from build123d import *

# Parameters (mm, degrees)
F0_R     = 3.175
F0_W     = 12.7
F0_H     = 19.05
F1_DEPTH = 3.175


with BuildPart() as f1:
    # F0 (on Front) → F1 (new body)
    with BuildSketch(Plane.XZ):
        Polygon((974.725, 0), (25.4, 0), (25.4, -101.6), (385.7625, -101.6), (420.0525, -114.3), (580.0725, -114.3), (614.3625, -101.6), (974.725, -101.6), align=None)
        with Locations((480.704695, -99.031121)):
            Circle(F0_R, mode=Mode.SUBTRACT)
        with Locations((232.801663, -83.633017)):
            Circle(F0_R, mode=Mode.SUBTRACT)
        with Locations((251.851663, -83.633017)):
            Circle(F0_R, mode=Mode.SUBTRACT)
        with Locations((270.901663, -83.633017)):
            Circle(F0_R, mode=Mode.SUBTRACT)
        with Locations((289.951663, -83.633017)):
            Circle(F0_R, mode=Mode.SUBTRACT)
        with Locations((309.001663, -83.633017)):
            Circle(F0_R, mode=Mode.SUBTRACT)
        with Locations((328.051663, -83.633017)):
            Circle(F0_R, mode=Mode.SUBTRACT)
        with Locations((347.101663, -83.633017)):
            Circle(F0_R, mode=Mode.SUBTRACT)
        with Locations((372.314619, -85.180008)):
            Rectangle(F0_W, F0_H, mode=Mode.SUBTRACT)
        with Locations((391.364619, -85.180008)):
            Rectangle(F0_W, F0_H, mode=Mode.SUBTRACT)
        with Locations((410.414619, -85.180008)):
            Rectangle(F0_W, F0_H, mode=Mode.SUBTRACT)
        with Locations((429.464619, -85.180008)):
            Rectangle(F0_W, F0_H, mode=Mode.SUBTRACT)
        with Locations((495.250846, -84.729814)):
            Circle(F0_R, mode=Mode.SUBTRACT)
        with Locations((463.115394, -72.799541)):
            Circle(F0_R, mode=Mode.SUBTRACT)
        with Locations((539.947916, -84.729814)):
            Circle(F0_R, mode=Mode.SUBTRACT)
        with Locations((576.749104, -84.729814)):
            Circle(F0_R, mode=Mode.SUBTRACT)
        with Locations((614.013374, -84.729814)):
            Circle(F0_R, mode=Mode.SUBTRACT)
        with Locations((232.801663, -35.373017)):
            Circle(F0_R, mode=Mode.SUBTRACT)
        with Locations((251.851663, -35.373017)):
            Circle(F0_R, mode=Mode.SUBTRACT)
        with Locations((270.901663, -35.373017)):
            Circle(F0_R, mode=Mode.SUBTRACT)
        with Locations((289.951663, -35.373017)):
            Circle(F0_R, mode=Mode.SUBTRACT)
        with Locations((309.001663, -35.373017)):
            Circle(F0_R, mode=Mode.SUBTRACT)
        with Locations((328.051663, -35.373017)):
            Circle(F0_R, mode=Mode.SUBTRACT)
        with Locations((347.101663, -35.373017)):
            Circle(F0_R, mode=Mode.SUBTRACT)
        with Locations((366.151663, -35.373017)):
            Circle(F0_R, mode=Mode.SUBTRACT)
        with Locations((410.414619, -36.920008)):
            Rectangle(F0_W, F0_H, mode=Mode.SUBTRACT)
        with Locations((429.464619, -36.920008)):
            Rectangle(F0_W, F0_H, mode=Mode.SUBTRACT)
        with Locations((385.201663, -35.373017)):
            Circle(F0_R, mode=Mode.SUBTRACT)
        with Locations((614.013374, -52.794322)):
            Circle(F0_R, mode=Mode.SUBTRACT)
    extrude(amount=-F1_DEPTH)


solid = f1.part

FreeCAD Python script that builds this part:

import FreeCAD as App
import Part
import Sketcher
Q = App.Units.Quantity

doc = App.newDocument("Part")
body = doc.addObject("PartDesign::Body", "Body")

# Sketch on XZ plane
sketch1 = doc.addObject("Sketcher::SketchObject", "Sketch")
body.addObject(sketch1)
sketch1.AttachmentSupport = (doc.XZ_Plane, [""])
sketch1.MapMode = "FlatFace"
sketch1.addGeometry([
    Part.LineSegment(App.Vector(974.7, 0, 0), App.Vector(25.4, 0, 0)),  # 0
    Part.LineSegment(App.Vector(25.4, 0, 0), App.Vector(25.4, -101.6, 0)),  # 1
    Part.LineSegment(App.Vector(25.4, -101.6, 0), App.Vector(385.8, -101.6, 0)),  # 2
    Part.LineSegment(App.Vector(385.8, -101.6, 0), App.Vector(420.1, -114.3, 0)),  # 3
    Part.LineSegment(App.Vector(420.1, -114.3, 0), App.Vector(580.1, -114.3, 0)),  # 4
    Part.LineSegment(App.Vector(580.1, -114.3, 0), App.Vector(614.4, -101.6, 0)),  # 5
    Part.LineSegment(App.Vector(614.4, -101.6, 0), App.Vector(974.7, -101.6, 0)),  # 6
    Part.LineSegment(App.Vector(974.7, -101.6, 0), App.Vector(974.7, 0, 0)),  # 7
    Part.Circle(App.Vector(232.8, -83.6, 0), App.Vector(0, 0, 1), 3.2),  # 8
    Part.Circle(App.Vector(251.9, -83.6, 0), App.Vector(0, 0, 1), 3.2),  # 9
    Part.Circle(App.Vector(270.9, -83.6, 0), App.Vector(0, 0, 1), 3.2),  # 10
    Part.Circle(App.Vector(290, -83.6, 0), App.Vector(0, 0, 1), 3.2),  # 11
    Part.Circle(App.Vector(309, -83.6, 0), App.Vector(0, 0, 1), 3.2),  # 12
    Part.Circle(App.Vector(328.1, -83.6, 0), App.Vector(0, 0, 1), 3.2),  # 13
    Part.Circle(App.Vector(347.1, -83.6, 0), App.Vector(0, 0, 1), 3.2),  # 14
    Part.LineSegment(App.Vector(378.7, -94.7, 0), App.Vector(366, -94.7, 0)),  # 15
    Part.LineSegment(App.Vector(366, -94.7, 0), App.Vector(366, -75.7, 0)),  # 16
    Part.LineSegment(App.Vector(366, -75.7, 0), App.Vector(378.7, -75.7, 0)),  # 17
    Part.LineSegment(App.Vector(378.7, -75.7, 0), App.Vector(378.7, -94.7, 0)),  # 18
    Part.LineSegment(App.Vector(397.7, -94.7, 0), App.Vector(385, -94.7, 0)),  # 19
    Part.LineSegment(App.Vector(385, -94.7, 0), App.Vector(385, -75.7, 0)),  # 20
    Part.LineSegment(App.Vector(385, -75.7, 0), App.Vector(397.7, -75.7, 0)),  # 21
    Part.LineSegment(App.Vector(397.7, -75.7, 0), App.Vector(397.7, -94.7, 0)),  # 22
    Part.LineSegment(App.Vector(416.8, -94.7, 0), App.Vector(404.1, -94.7, 0)),  # 23
    Part.LineSegment(App.Vector(404.1, -94.7, 0), App.Vector(404.1, -75.7, 0)),  # 24
    Part.LineSegment(App.Vector(404.1, -75.7, 0), App.Vector(416.8, -75.7, 0)),  # 25
    Part.LineSegment(App.Vector(416.8, -75.7, 0), App.Vector(416.8, -94.7, 0)),  # 26
    Part.Circle(App.Vector(480.7, -99, 0), App.Vector(0, 0, 1), 3.2),  # 27
    Part.LineSegment(App.Vector(435.8, -94.7, 0), App.Vector(423.1, -94.7, 0)),  # 28
    Part.LineSegment(App.Vector(423.1, -94.7, 0), App.Vector(423.1, -75.7, 0)),  # 29
    Part.LineSegment(App.Vector(423.1, -75.7, 0), App.Vector(435.8, -75.7, 0)),  # 30
    Part.LineSegment(App.Vector(435.8, -75.7, 0), App.Vector(435.8, -94.7, 0)),  # 31
    Part.Circle(App.Vector(495.3, -84.7, 0), App.Vector(0, 0, 1), 3.2),  # 32
    Part.Circle(App.Vector(539.9, -84.7, 0), App.Vector(0, 0, 1), 3.2),  # 33
    Part.Circle(App.Vector(576.7, -84.7, 0), App.Vector(0, 0, 1), 3.2),  # 34
    Part.Circle(App.Vector(614, -84.7, 0), App.Vector(0, 0, 1), 3.2),  # 35
    Part.Circle(App.Vector(463.1, -72.8, 0), App.Vector(0, 0, 1), 3.2),  # 36
    Part.Circle(App.Vector(232.8, -35.4, 0), App.Vector(0, 0, 1), 3.2),  # 37
    Part.Circle(App.Vector(251.9, -35.4, 0), App.Vector(0, 0, 1), 3.2),  # 38
    Part.Circle(App.Vector(270.9, -35.4, 0), App.Vector(0, 0, 1), 3.2),  # 39
    Part.Circle(App.Vector(290, -35.4, 0), App.Vector(0, 0, 1), 3.2),  # 40
    Part.Circle(App.Vector(309, -35.4, 0), App.Vector(0, 0, 1), 3.2),  # 41
    Part.LineSegment(App.Vector(416.8, -46.4, 0), App.Vector(404.1, -46.4, 0)),  # 42
    Part.LineSegment(App.Vector(404.1, -46.4, 0), App.Vector(404.1, -27.4, 0)),  # 43
    Part.LineSegment(App.Vector(404.1, -27.4, 0), App.Vector(416.8, -27.4, 0)),  # 44
    Part.LineSegment(App.Vector(416.8, -27.4, 0), App.Vector(416.8, -46.4, 0)),  # 45
    Part.Circle(App.Vector(328.1, -35.4, 0), App.Vector(0, 0, 1), 3.2),  # 46
    Part.Circle(App.Vector(347.1, -35.4, 0), App.Vector(0, 0, 1), 3.2),  # 47
    Part.Circle(App.Vector(366.2, -35.4, 0), App.Vector(0, 0, 1), 3.2),  # 48
    Part.Circle(App.Vector(385.2, -35.4, 0), App.Vector(0, 0, 1), 3.2),  # 49
    Part.Circle(App.Vector(614, -52.8, 0), App.Vector(0, 0, 1), 3.2),  # 50
    Part.LineSegment(App.Vector(435.8, -46.4, 0), App.Vector(423.1, -46.4, 0)),  # 51
    Part.LineSegment(App.Vector(423.1, -46.4, 0), App.Vector(423.1, -27.4, 0)),  # 52
    Part.LineSegment(App.Vector(423.1, -27.4, 0), App.Vector(435.8, -27.4, 0)),  # 53
    Part.LineSegment(App.Vector(435.8, -27.4, 0), App.Vector(435.8, -46.4, 0)),  # 54
], False)
sketch1.addConstraint([
    Sketcher.Constraint("Coincident", 0, 2, 1, 1),
    Sketcher.Constraint("Coincident", 1, 2, 2, 1),
    Sketcher.Constraint("Coincident", 2, 2, 3, 1),
    Sketcher.Constraint("Coincident", 3, 2, 4, 1),
    Sketcher.Constraint("Coincident", 4, 2, 5, 1),
    Sketcher.Constraint("Coincident", 5, 2, 6, 1),
    Sketcher.Constraint("Coincident", 6, 2, 7, 1),
    Sketcher.Constraint("Coincident", 7, 2, 0, 1),
    Sketcher.Constraint("Coincident", 15, 2, 16, 1),
    Sketcher.Constraint("Coincident", 16, 2, 17, 1),
    Sketcher.Constraint("Coincident", 17, 2, 18, 1),
    Sketcher.Constraint("Coincident", 18, 2, 15, 1),
    Sketcher.Constraint("Coincident", 19, 2, 20, 1),
    Sketcher.Constraint("Coincident", 20, 2, 21, 1),
    Sketcher.Constraint("Coincident", 21, 2, 22, 1),
    Sketcher.Constraint("Coincident", 22, 2, 19, 1),
    Sketcher.Constraint("Coincident", 23, 2, 24, 1),
    Sketcher.Constraint("Coincident", 24, 2, 25, 1),
    Sketcher.Constraint("Coincident", 25, 2, 26, 1),
    Sketcher.Constraint("Coincident", 26, 2, 23, 1),
    Sketcher.Constraint("Coincident", 28, 2, 29, 1),
    Sketcher.Constraint("Coincident", 29, 2, 30, 1),
    Sketcher.Constraint("Coincident", 30, 2, 31, 1),
    Sketcher.Constraint("Coincident", 31, 2, 28, 1),
    Sketcher.Constraint("Coincident", 42, 2, 43, 1),
    Sketcher.Constraint("Coincident", 43, 2, 44, 1),
    Sketcher.Constraint("Coincident", 44, 2, 45, 1),
    Sketcher.Constraint("Coincident", 45, 2, 42, 1),
    Sketcher.Constraint("Coincident", 51, 2, 52, 1),
    Sketcher.Constraint("Coincident", 52, 2, 53, 1),
    Sketcher.Constraint("Coincident", 53, 2, 54, 1),
    Sketcher.Constraint("Coincident", 54, 2, 51, 1),
    Sketcher.Constraint("Horizontal", 0),
    Sketcher.Constraint("Vertical", 1),
    Sketcher.Constraint("Horizontal", 2),
    Sketcher.Constraint("Horizontal", 4),
    Sketcher.Constraint("Horizontal", 6),
    Sketcher.Constraint("Vertical", 7),
    Sketcher.Constraint("Horizontal", 15),
    Sketcher.Constraint("Vertical", 16),
    Sketcher.Constraint("Horizontal", 17),
    Sketcher.Constraint("Vertical", 18),
    Sketcher.Constraint("Horizontal", 19),
    Sketcher.Constraint("Vertical", 20),
    Sketcher.Constraint("Horizontal", 21),
    Sketcher.Constraint("Vertical", 22),
    Sketcher.Constraint("Horizontal", 23),
    Sketcher.Constraint("Vertical", 24),
    Sketcher.Constraint("Horizontal", 25),
    Sketcher.Constraint("Vertical", 26),
    Sketcher.Constraint("Horizontal", 28),
    Sketcher.Constraint("Vertical", 29),
    Sketcher.Constraint("Horizontal", 30),
    Sketcher.Constraint("Vertical", 31),
    Sketcher.Constraint("Horizontal", 42),
    Sketcher.Constraint("Vertical", 43),
    Sketcher.Constraint("Horizontal", 44),
    Sketcher.Constraint("Vertical", 45),
    Sketcher.Constraint("Horizontal", 51),
    Sketcher.Constraint("Vertical", 52),
    Sketcher.Constraint("Horizontal", 53),
    Sketcher.Constraint("Vertical", 54),
    Sketcher.Constraint("Equal", 8, 9),
    Sketcher.Constraint("Equal", 9, 10),
    Sketcher.Constraint("Equal", 10, 11),
    Sketcher.Constraint("Equal", 11, 12),
    Sketcher.Constraint("Equal", 12, 13),
    Sketcher.Constraint("Equal", 13, 14),
    Sketcher.Constraint("Equal", 14, 27),
    Sketcher.Constraint("Equal", 27, 32),
    Sketcher.Constraint("Equal", 32, 33),
    Sketcher.Constraint("Equal", 33, 34),
    Sketcher.Constraint("Equal", 34, 35),
    Sketcher.Constraint("Equal", 35, 36),
    Sketcher.Constraint("Equal", 36, 37),
    Sketcher.Constraint("Equal", 37, 38),
    Sketcher.Constraint("Equal", 38, 39),
    Sketcher.Constraint("Equal", 39, 40),
    Sketcher.Constraint("Equal", 40, 41),
    Sketcher.Constraint("Equal", 41, 46),
    Sketcher.Constraint("Equal", 46, 47),
    Sketcher.Constraint("Equal", 47, 48),
    Sketcher.Constraint("Equal", 48, 49),
    Sketcher.Constraint("Equal", 49, 50),
    Sketcher.Constraint("PointOnObject", 0, 2, -1),
    Sketcher.Constraint("Horizontal", 8, 3, 9, 3),
    Sketcher.Constraint("Horizontal", 9, 3, 10, 3),
    Sketcher.Constraint("Horizontal", 10, 3, 11, 3),
    Sketcher.Constraint("Horizontal", 11, 3, 12, 3),
    Sketcher.Constraint("Horizontal", 12, 3, 13, 3),
    Sketcher.Constraint("Horizontal", 13, 3, 14, 3),
    Sketcher.Constraint("Horizontal", 32, 3, 33, 3),
    Sketcher.Constraint("Horizontal", 33, 3, 34, 3),
    Sketcher.Constraint("Horizontal", 34, 3, 35, 3),
    Sketcher.Constraint("Horizontal", 37, 3, 38, 3),
    Sketcher.Constraint("Horizontal", 38, 3, 39, 3),
    Sketcher.Constraint("Horizontal", 39, 3, 40, 3),
    Sketcher.Constraint("Horizontal", 40, 3, 41, 3),
    Sketcher.Constraint("Horizontal", 41, 3, 46, 3),
    Sketcher.Constraint("Horizontal", 46, 3, 47, 3),
    Sketcher.Constraint("Horizontal", 47, 3, 48, 3),
    Sketcher.Constraint("Horizontal", 48, 3, 49, 3),
    Sketcher.Constraint("Horizontal", 2, 2, 5, 2),
    Sketcher.Constraint("Horizontal", 18, 2, 19, 2),
    Sketcher.Constraint("Horizontal", 17, 2, 20, 2),
    Sketcher.Constraint("Horizontal", 22, 2, 23, 2),
    Sketcher.Constraint("Horizontal", 21, 2, 24, 2),
    Sketcher.Constraint("Horizontal", 26, 2, 28, 2),
    Sketcher.Constraint("Horizontal", 25, 2, 29, 2),
    Sketcher.Constraint("Horizontal", 45, 2, 51, 2),
    Sketcher.Constraint("Horizontal", 44, 2, 52, 2),
    Sketcher.Constraint("Vertical", 8, 3, 37, 3),
    Sketcher.Constraint("Vertical", 9, 3, 38, 3),
    Sketcher.Constraint("Vertical", 10, 3, 39, 3),
    Sketcher.Constraint("Vertical", 11, 3, 40, 3),
    Sketcher.Constraint("Vertical", 12, 3, 41, 3),
    Sketcher.Constraint("Vertical", 13, 3, 46, 3),
    Sketcher.Constraint("Vertical", 14, 3, 47, 3),
    Sketcher.Constraint("Vertical", 35, 3, 50, 3),
    Sketcher.Constraint("Vertical", 24, 2, 42, 2),
    Sketcher.Constraint("Vertical", 26, 2, 44, 2),
    Sketcher.Constraint("Vertical", 29, 2, 51, 2),
    Sketcher.Constraint("Vertical", 31, 2, 53, 2),
    Sketcher.Constraint("Equal", 2, 6),
    Sketcher.Constraint("Equal", 17, 19),
    Sketcher.Constraint("Equal", 21, 23),
    Sketcher.Constraint("Equal", 25, 28),
    Sketcher.Constraint("Equal", 31, 43),
    Sketcher.Constraint("Equal", 3, 5),
    Sketcher.Constraint("Diameter", 8, Q("0.25 in")),
    Sketcher.Constraint("DistanceY", 1, 2, 1, 1, Q("4 in")),
    Sketcher.Constraint("DistanceX", 4, 1, 4, 2, Q("6.3 in")),
    Sketcher.Constraint("DistanceX", 15, 2, 15, 1, Q("0.5 in")),
    Sketcher.Constraint("DistanceX", -1, 1, 0, 2, Q("1 in")),
    Sketcher.Constraint("DistanceX", 8, 3, 12, 3, Q("3 in")),
    Sketcher.Constraint("DistanceX", 9, 3, 13, 3, Q("3 in")),
    Sketcher.Constraint("DistanceX", 10, 3, 14, 3, Q("3 in")),
    Sketcher.Constraint("DistanceX", 17, 2, 24, 2, Q("1 in")),
    Sketcher.Constraint("DistanceX", 22, 2, 28, 2, Q("1 in")),
    Sketcher.Constraint("DistanceY", 16, 1, 16, 2, Q("0.75 in")),
    Sketcher.Constraint("DistanceY", 3, 2, -1, 1, Q("4.5 in")),
    Sketcher.Constraint("DistanceX", 8, 3, 10, 3, Q("1.5 in")),
    Sketcher.Constraint("DistanceX", 9, 3, 11, 3, Q("1.5 in")),
    Sketcher.Constraint("DistanceY", 8, 3, 37, 3, Q("1.9 in")),
    Sketcher.Constraint("DistanceX", 46, 3, 48, 3, Q("1.5 in")),
    Sketcher.Constraint("DistanceX", 47, 3, 49, 3, Q("1.5 in")),
    Sketcher.Constraint("DistanceY", 24, 2, 43, 2, Q("1.9 in")),
    Sketcher.Constraint("DistanceX", 0, 2, 0, 1, Q("37.375 in")),
    Sketcher.Constraint("DistanceX", 2, 1, 2, 2, Q("14.1875 in")),
    Sketcher.Constraint("DistanceX", 8, 3, 9, 3, Q("0.75 in")),
    Sketcher.Constraint("DistanceX", 18, 2, 19, 2, Q("0.25 in")),
    Sketcher.Constraint("DistanceX", 36, 3, 27, 3, 17.589301),
    Sketcher.Constraint("DistanceY", 27, 3, 50, 3, 46.236799),
    Sketcher.Constraint("DistanceY", 27, 3, -1, 1, 99.031121),
    Sketcher.Constraint("DistanceY", 36, 3, -1, 1, 72.799541),
    Sketcher.Constraint("DistanceX", -1, 1, 15, 2, 365.964619),
    Sketcher.Constraint("DistanceY", 15, 2, -1, 1, 94.705008),
    Sketcher.Constraint("DistanceX", 13, 3, 27, 3, 152.653032),
    Sketcher.Constraint("DistanceX", 27, 3, 32, 3, 14.546151),
    Sketcher.Constraint("DistanceX", 32, 3, 33, 3, 44.69707),
    Sketcher.Constraint("DistanceX", 33, 3, 34, 3, 36.801188),
    Sketcher.Constraint("DistanceX", 34, 3, 35, 3, 37.26427),
    Sketcher.Constraint("DistanceY", 15, 2, 14, 3, 11.071991),
    Sketcher.Constraint("DistanceX", -1, 1, 8, 3, 232.801663),
    Sketcher.Constraint("DistanceY", 32, 3, -1, 1, 84.729814),
])
pad1 = doc.addObject("PartDesign::Pad", "Pad")
body.addObject(pad1)
pad1.Profile = sketch1
pad1.Length = Q("0.125 in")
pad1.Reversed = True

doc.recompute()
